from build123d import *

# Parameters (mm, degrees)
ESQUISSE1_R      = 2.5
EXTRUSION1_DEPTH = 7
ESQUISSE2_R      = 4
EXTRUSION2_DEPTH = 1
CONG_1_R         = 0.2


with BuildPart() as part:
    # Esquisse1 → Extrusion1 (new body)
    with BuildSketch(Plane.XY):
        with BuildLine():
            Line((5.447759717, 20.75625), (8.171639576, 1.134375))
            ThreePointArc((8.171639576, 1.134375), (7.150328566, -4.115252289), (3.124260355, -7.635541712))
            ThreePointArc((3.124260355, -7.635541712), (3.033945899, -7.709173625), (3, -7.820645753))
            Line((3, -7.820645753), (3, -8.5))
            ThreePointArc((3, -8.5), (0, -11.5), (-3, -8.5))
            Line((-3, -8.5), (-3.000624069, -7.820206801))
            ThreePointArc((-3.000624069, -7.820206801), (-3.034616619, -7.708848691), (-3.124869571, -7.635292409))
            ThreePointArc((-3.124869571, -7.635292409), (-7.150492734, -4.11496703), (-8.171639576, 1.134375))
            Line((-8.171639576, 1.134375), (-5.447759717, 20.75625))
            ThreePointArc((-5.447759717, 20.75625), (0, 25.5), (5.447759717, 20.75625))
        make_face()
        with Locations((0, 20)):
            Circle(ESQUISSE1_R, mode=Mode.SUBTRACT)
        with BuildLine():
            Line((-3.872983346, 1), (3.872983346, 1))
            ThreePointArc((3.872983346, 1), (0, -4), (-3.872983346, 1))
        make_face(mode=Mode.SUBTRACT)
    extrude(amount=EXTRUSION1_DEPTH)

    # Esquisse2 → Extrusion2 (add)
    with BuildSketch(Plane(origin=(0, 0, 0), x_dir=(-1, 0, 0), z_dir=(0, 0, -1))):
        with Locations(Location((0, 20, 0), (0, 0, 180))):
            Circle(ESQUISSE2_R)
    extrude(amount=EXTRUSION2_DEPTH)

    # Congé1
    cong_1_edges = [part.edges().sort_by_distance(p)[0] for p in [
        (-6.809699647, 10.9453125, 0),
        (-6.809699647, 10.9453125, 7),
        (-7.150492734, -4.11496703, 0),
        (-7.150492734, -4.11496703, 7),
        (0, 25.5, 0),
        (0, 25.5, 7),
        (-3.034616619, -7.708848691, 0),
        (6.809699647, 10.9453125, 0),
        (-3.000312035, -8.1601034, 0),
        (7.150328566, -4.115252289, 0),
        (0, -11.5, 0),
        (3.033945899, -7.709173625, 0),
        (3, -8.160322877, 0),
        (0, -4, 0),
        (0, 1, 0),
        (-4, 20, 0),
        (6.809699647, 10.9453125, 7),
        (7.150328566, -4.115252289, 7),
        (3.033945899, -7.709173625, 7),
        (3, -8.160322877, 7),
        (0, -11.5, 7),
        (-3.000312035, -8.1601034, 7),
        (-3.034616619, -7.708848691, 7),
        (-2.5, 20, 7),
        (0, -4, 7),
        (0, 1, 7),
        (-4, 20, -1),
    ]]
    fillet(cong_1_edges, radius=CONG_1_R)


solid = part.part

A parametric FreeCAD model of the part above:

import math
import FreeCAD as App
import Part
import Sketcher
from FreeCAD import Vector
Q = App.Units.Quantity


def edges_at(feature, points):
    """Names of the edges that pass closest to the given points."""
    edges = feature.Shape.Edges
    near = lambda p: min(range(len(edges)), key=lambda i: edges[i].distToShape(Part.Vertex(*p))[0])
    return sorted({f"Edge{near(p) + 1}" for p in points})

doc = App.newDocument("Part")
body = doc.addObject("PartDesign::Body", "Body")

sketch1 = body.newObject("Sketcher::SketchObject", "Sketch")
sketch1.AttachmentSupport = (doc.getObject("XY_Plane"), [""])
sketch1.MapMode = "FlatFace"
sketch1.addGeometry([
    Part.LineSegment(Vector(8.17164, 1.134375, 0), Vector(5.44776, 20.75625, 0)),
    Part.ArcOfCircle(Part.Circle(Vector(0, 20, 0), Vector(0, 0, 1), 5.5), math.radians(7.903208), math.radians(172.096792)),
    Part.LineSegment(Vector(-5.44776, 20.75625, 0), Vector(-8.17164, 1.134375, 0)),
    Part.ArcOfCircle(Part.Circle(Vector(0, 0, 0), Vector(0, 0, 1), 8.25), math.radians(172.096792), math.radians(247.742357)),
    Part.ArcOfCircle(Part.Circle(Vector(-3.200624, -7.82039, 0), Vector(0, 0, 1), 0.2), math.radians(0.0526), math.radians(67.742357)),
    Part.LineSegment(Vector(-3.000624, -7.820207, 0), Vector(-3, -8.5, 0)),
    Part.ArcOfCircle(Part.Circle(Vector(0, -8.5, 0), Vector(0, 0, 1), 3), math.radians(180), math.radians(360)),
    Part.LineSegment(Vector(3, -8.5, 0), Vector(3, -7.820646, 0)),
    Part.ArcOfCircle(Part.Circle(Vector(3.2, -7.820646, 0), Vector(0, 0, 1), 0.2), math.radians(112.253071), math.radians(180)),
    Part.ArcOfCircle(Part.Circle(Vector(0, 0, 0), Vector(0, 0, 1), 8.25), math.radians(-67.746929), math.radians(7.903208)),
    Part.LineSegment(Vector(-3.872983, 1, 0), Vector(3.872983, 1, 0)),
    Part.ArcOfCircle(Part.Circle(Vector(0, 0, 0), Vector(0, 0, 1), 4), math.radians(165.522488), math.radians(374.477512)),
    Part.Circle(Vector(0, 20, 0), Vector(0, 0, 1), 2.5),
], False)
sketch1.addConstraint([
    Sketcher.Constraint("Tangent", 0, 2, 1, 1),
    Sketcher.Constraint("Tangent", 1, 2, 2, 1),
    Sketcher.Constraint("Tangent", 2, 2, 3, 1),
    Sketcher.Constraint("Tangent", 3, 2, 4, 2),
    Sketcher.Constraint("Tangent", 4, 1, 5, 1),
    Sketcher.Constraint("Coincident", 5, 2, 6, 1),
    Sketcher.Constraint("Tangent", 6, 2, 7, 1),
    Sketcher.Constraint("Tangent", 7, 2, 8, 2),
    Sketcher.Constraint("Tangent", 8, 1, 9, 1),
    Sketcher.Constraint("Tangent", 9, 2, 0, 1),
    Sketcher.Constraint("Coincident", 10, 1, 11, 1),
    Sketcher.Constraint("Coincident", 11, 2, 10, 2),
    Sketcher.Constraint("Vertical", 7),
    Sketcher.Constraint("Horizontal", 10),
    Sketcher.Constraint("Coincident", 3, 3, -1, 1),
    Sketcher.Constraint("Coincident", 9, 3, -1, 1),
    Sketcher.Constraint("Coincident", 11, 3, -1, 1),
    Sketcher.Constraint("Coincident", 12, 3, 1, 3),
    Sketcher.Constraint("Equal", 4, 8),
    Sketcher.Constraint("Equal", 3, 9),
    Sketcher.Constraint("Symmetric", 5, 2, 6, 2, -2),
    Sketcher.Constraint("PointOnObject", 1, 3, -2),
    Sketcher.Constraint("Diameter", 12, Q("5 mm")),
    Sketcher.Constraint("Radius", 6, Q("3 mm")),
    Sketcher.Constraint("Radius", 11, Q("4 mm")),
    Sketcher.Constraint("Radius", 1, Q("5.5 mm")),
    Sketcher.Constraint("Radius", 4, Q("0.2 mm")),
    Sketcher.Constraint("Radius", 3, Q("8.25 mm")),
    Sketcher.Constraint("DistanceY", -1, 1, 1, 3, Q("20 mm")),
    Sketcher.Constraint("DistanceY", -1, 1, 10, 1, Q("1 mm")),
    Sketcher.Constraint("DistanceY", 6, 3, -1, 1, Q("8.5 mm")),
    Sketcher.Constraint("DistanceY", 4, 3, -1, 1, Q("7.82039 mm")),
])
pad1 = body.newObject("PartDesign::Pad", "Pad")
pad1.Profile = sketch1
pad1.Length = 7

sketch2 = body.newObject("Sketcher::SketchObject", "Sketch001")
sketch2.AttachmentSupport = (doc.getObject("XY_Plane"), [""])
sketch2.MapMode = "FlatFace"
sketch2.addGeometry(Part.Circle(Vector(0, 20, 0), Vector(0, 0, 1), 4), False)
sketch2.addConstraint([
    Sketcher.Constraint("PointOnObject", 0, 3, -2),
    Sketcher.Constraint("Diameter", 0, Q("8 mm")),
    Sketcher.Constraint("DistanceY", -1, 1, 0, 3, Q("20 mm")),
])
pad2 = body.newObject("PartDesign::Pad", "Pad001")
pad2.Profile = sketch2
pad2.Length = 1
pad2.Reversed = True
doc.recompute()

fillet = body.newObject("PartDesign::Fillet", "Fillet")
fillet.Base = (pad2, edges_at(pad2, [
    (-6.81, 10.945, 0),
    (-6.81, 10.945, 7),
    (-7.15, -4.115, 0),
    (-7.15, -4.115, 7),
    (0, 25.5, 0),
    (0, 25.5, 7),
    (-3.035, -7.709, 0),
    (6.81, 10.945, 0),
    (-3, -8.16, 0),
    (7.15, -4.115, 0),
    (0, -11.5, 0),
    (3.034, -7.709, 0),
    (3, -8.16, 0),
    (0, -4, 0),
    (0, 1, 0),
    (-4, 20, 0),
    (6.81, 10.945, 7),
    (7.15, -4.115, 7),
    (3.034, -7.709, 7),
    (3, -8.16, 7),
    (0, -11.5, 7),
    (-3, -8.16, 7),
    (-3.035, -7.709, 7),
    (-2.5, 20, 7),
    (0, -4, 7),
    (0, 1, 7),
    (-4, 20, -1),
]))
fillet.Radius = 0.2

doc.recompute()
